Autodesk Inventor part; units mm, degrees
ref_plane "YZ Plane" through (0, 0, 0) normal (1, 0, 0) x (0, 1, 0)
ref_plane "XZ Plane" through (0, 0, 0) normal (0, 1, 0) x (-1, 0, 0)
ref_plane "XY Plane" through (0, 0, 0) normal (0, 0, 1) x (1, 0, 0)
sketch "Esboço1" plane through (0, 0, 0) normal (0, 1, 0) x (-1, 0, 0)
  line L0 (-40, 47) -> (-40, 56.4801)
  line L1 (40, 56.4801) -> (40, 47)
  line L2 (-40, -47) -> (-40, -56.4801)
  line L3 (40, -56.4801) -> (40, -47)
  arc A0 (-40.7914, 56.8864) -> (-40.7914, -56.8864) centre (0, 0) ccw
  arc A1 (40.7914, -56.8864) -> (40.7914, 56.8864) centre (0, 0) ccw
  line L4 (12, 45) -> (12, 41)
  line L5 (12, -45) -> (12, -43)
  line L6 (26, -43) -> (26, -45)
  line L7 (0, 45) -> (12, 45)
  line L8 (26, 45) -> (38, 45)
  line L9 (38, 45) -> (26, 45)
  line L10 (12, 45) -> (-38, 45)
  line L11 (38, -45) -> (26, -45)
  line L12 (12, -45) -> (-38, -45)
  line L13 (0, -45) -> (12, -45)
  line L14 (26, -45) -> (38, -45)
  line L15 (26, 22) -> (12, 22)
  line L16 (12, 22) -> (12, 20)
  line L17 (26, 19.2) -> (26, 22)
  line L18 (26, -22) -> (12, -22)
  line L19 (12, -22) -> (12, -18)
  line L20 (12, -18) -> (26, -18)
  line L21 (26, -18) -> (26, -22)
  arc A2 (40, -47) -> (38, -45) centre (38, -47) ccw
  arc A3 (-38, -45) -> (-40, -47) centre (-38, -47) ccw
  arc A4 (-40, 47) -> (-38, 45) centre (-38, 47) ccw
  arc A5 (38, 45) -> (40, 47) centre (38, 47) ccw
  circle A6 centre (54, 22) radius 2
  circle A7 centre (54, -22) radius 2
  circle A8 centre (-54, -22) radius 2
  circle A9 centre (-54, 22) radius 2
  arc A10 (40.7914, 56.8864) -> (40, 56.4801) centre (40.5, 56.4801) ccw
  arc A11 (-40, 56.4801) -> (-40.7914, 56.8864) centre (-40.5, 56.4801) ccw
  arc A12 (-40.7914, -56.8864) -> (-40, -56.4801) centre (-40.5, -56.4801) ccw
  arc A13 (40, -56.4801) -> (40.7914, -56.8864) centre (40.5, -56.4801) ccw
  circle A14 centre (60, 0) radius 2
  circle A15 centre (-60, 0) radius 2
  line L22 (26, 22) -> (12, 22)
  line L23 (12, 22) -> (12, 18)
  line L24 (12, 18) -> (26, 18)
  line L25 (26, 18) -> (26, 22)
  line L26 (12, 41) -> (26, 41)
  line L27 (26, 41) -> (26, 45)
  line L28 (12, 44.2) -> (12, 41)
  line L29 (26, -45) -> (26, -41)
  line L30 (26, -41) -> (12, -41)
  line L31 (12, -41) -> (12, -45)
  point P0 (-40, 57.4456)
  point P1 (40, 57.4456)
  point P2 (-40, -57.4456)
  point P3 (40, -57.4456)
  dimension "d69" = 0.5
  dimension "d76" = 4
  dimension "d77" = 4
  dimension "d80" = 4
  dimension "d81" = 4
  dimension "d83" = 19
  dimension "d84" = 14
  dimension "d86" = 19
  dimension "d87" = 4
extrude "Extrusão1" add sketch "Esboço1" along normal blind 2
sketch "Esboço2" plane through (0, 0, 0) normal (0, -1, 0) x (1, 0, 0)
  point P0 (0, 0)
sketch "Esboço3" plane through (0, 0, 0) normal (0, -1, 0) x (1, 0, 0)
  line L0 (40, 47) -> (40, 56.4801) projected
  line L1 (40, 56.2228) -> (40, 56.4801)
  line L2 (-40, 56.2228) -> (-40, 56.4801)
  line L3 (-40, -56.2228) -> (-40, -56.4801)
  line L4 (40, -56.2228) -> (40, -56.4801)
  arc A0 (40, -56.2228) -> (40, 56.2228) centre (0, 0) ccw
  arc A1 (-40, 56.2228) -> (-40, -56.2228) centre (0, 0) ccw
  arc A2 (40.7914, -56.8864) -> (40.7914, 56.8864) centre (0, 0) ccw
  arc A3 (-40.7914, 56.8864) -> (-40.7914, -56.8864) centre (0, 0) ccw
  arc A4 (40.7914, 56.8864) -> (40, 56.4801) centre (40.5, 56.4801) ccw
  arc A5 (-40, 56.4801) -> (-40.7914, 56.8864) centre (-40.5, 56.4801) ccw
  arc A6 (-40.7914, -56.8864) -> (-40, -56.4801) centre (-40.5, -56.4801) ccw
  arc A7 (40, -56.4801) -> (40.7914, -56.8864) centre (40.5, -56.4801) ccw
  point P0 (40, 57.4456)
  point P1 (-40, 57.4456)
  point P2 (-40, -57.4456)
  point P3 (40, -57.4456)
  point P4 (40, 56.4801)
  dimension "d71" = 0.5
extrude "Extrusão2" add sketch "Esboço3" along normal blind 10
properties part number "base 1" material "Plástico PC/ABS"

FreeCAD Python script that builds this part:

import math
import FreeCAD as App
import Part
import Sketcher
Q = App.Units.Quantity

doc = App.newDocument("Part")
params = doc.addObject("Spreadsheet::Sheet", "Params")
for row, (alias, value) in enumerate([
    ("sketch1_diameter", "4 mm"),
    ("sketch1_radius", "0.5 mm"),
    ("sketch1_width", "14 mm"),
    ("sketch1_height", "4 mm"),
    ("sketch1_radius2", "70 mm"),
    ("pad1_length", "2 mm"),
    ("sketch2_radius", "0.5 mm"),
    ("sketch2_radius2", "69 mm"),
    ("sketch2_radius3", "70 mm"),
    ("pad2_length", "10 mm"),
], start=1):
    params.set(f"A{row}", alias)
    params.set(f"B{row}", "=" + value)
    params.setAlias(f"B{row}", alias)

body = doc.addObject("PartDesign::Body", "Body")

# Sketch on XZ plane
sketch1 = body.newObject("Sketcher::SketchObject", "Sketch")
sketch1.AttachmentSupport = (doc.getObject("XZ_Plane"), [""])
sketch1.MapMode = "FlatFace"
sketch1.addGeometry(Part.ArcOfCircle(Part.Circle(App.Vector(38, 47, 0), App.Vector(0, 0, 1), 2), math.radians(-90), math.radians(0)), False)
sketch1.addGeometry(Part.LineSegment(App.Vector(40, 47, 0), App.Vector(40, 56.48, 0)), False)
sketch1.addGeometry(Part.ArcOfCircle(Part.Circle(App.Vector(40.5, 56.48, 0), App.Vector(0, 0, 1), 0.5), math.radians(54), math.radians(180)), False)
sketch1.addGeometry(Part.ArcOfCircle(Part.Circle(App.Vector(0, 0, 0), App.Vector(0, 0, 1), 70), math.radians(-54), math.radians(54)), False)
sketch1.addGeometry(Part.ArcOfCircle(Part.Circle(App.Vector(40.5, -56.48, 0), App.Vector(0, 0, 1), 0.5), math.radians(180), math.radians(306)), False)
sketch1.addGeometry(Part.LineSegment(App.Vector(40, -56.48, 0), App.Vector(40, -47, 0)), False)
sketch1.addGeometry(Part.ArcOfCircle(Part.Circle(App.Vector(38, -47, 0), App.Vector(0, 0, 1), 2), math.radians(0), math.radians(90)), False)
sketch1.addGeometry(Part.LineSegment(App.Vector(38, -45, 0), App.Vector(-12, -45, 0)), False)
sketch1.addGeometry(Part.LineSegment(App.Vector(-12, -45, 0), App.Vector(-12, -41, 0)), False)
sketch1.addGeometry(Part.LineSegment(App.Vector(-12, -41, 0), App.Vector(-26, -41, 0)), False)
sketch1.addGeometry(Part.LineSegment(App.Vector(-26, -41, 0), App.Vector(-26, -45, 0)), False)
sketch1.addGeometry(Part.LineSegment(App.Vector(-26, -45, 0), App.Vector(-38, -45, 0)), False)
sketch1.addGeometry(Part.ArcOfCircle(Part.Circle(App.Vector(-38, -47, 0), App.Vector(0, 0, 1), 2), math.radians(90), math.radians(180)), False)
sketch1.addGeometry(Part.LineSegment(App.Vector(-40, -47, 0), App.Vector(-40, -56.48, 0)), False)
sketch1.addGeometry(Part.ArcOfCircle(Part.Circle(App.Vector(-40.5, -56.48, 0), App.Vector(0, 0, 1), 0.5), math.radians(-126), math.radians(0)), False)
sketch1.addGeometry(Part.ArcOfCircle(Part.Circle(App.Vector(0, 0, 0), App.Vector(0, 0, 1), 70), math.radians(126), math.radians(234)), False)
sketch1.addGeometry(Part.ArcOfCircle(Part.Circle(App.Vector(-40.5, 56.48, 0), App.Vector(0, 0, 1), 0.5), math.radians(0), math.radians(126)), False)
sketch1.addGeometry(Part.LineSegment(App.Vector(-40, 56.48, 0), App.Vector(-40, 47, 0)), False)
sketch1.addGeometry(Part.ArcOfCircle(Part.Circle(App.Vector(-38, 47, 0), App.Vector(0, 0, 1), 2), math.radians(180), math.radians(270)), False)
sketch1.addGeometry(Part.LineSegment(App.Vector(-38, 45, 0), App.Vector(-26, 45, 0)), False)
sketch1.addGeometry(Part.LineSegment(App.Vector(-26, 45, 0), App.Vector(-26, 41, 0)), False)
sketch1.addGeometry(Part.LineSegment(App.Vector(-26, 41, 0), App.Vector(-12, 41, 0)), False)
sketch1.addGeometry(Part.LineSegment(App.Vector(-12, 41, 0), App.Vector(-12, 45, 0)), False)
sketch1.addGeometry(Part.LineSegment(App.Vector(-12, 45, 0), App.Vector(38, 45, 0)), False)
sketch1.addGeometry(Part.Circle(App.Vector(54, -22, 0), App.Vector(0, 0, 1), 2), False)
sketch1.addGeometry(Part.LineSegment(App.Vector(-26, -18, 0), App.Vector(-26, -22, 0)), False)
sketch1.addGeometry(Part.LineSegment(App.Vector(-26, -22, 0), App.Vector(-12, -22, 0)), False)
sketch1.addGeometry(Part.LineSegment(App.Vector(-12, -22, 0), App.Vector(-12, -18, 0)), False)
sketch1.addGeometry(Part.LineSegment(App.Vector(-12, -18, 0), App.Vector(-26, -18, 0)), False)
sketch1.addGeometry(Part.Circle(App.Vector(-54, -22, 0), App.Vector(0, 0, 1), 2), False)
sketch1.addGeometry(Part.Circle(App.Vector(60, 0, 0), App.Vector(0, 0, 1), 2), False)
sketch1.addGeometry(Part.Circle(App.Vector(54, 22, 0), App.Vector(0, 0, 1), 2), False)
sketch1.addGeometry(Part.LineSegment(App.Vector(-12, 22, 0), App.Vector(-26, 22, 0)), False)
sketch1.addGeometry(Part.LineSegment(App.Vector(-26, 22, 0), App.Vector(-26, 18, 0)), False)
sketch1.addGeometry(Part.LineSegment(App.Vector(-26, 18, 0), App.Vector(-12, 18, 0)), False)
sketch1.addGeometry(Part.LineSegment(App.Vector(-12, 18, 0), App.Vector(-12, 22, 0)), False)
sketch1.addGeometry(Part.Circle(App.Vector(-60, 0, 0), App.Vector(0, 0, 1), 2), False)
sketch1.addGeometry(Part.Circle(App.Vector(-54, 22, 0), App.Vector(0, 0, 1), 2), False)
sketch1.addConstraint(Sketcher.Constraint("Tangent", 0, 2, 1, 1))
sketch1.addConstraint(Sketcher.Constraint("Tangent", 1, 2, 2, 2))
sketch1.addConstraint(Sketcher.Constraint("Tangent", 2, 1, 3, 2))
sketch1.addConstraint(Sketcher.Constraint("Tangent", 3, 1, 4, 2))
sketch1.addConstraint(Sketcher.Constraint("Tangent", 4, 1, 5, 1))
sketch1.addConstraint(Sketcher.Constraint("Tangent", 5, 2, 6, 1))
sketch1.addConstraint(Sketcher.Constraint("Tangent", 6, 2, 7, 1))
sketch1.addConstraint(Sketcher.Constraint("Coincident", 7, 2, 8, 1))
sketch1.addConstraint(Sketcher.Constraint("Coincident", 8, 2, 9, 1))
sketch1.addConstraint(Sketcher.Constraint("Coincident", 9, 2, 10, 1))
sketch1.addConstraint(Sketcher.Constraint("Coincident", 10, 2, 11, 1))
sketch1.addConstraint(Sketcher.Constraint("Tangent", 11, 2, 12, 1))
sketch1.addConstraint(Sketcher.Constraint("Tangent", 12, 2, 13, 1))
sketch1.addConstraint(Sketcher.Constraint("Tangent", 13, 2, 14, 2))
sketch1.addConstraint(Sketcher.Constraint("Tangent", 14, 1, 15, 2))
sketch1.addConstraint(Sketcher.Constraint("Tangent", 15, 1, 16, 2))
sketch1.addConstraint(Sketcher.Constraint("Tangent", 16, 1, 17, 1))
sketch1.addConstraint(Sketcher.Constraint("Tangent", 17, 2, 18, 1))
sketch1.addConstraint(Sketcher.Constraint("Tangent", 18, 2, 19, 1))
sketch1.addConstraint(Sketcher.Constraint("Coincident", 19, 2, 20, 1))
sketch1.addConstraint(Sketcher.Constraint("Coincident", 20, 2, 21, 1))
sketch1.addConstraint(Sketcher.Constraint("Coincident", 21, 2, 22, 1))
sketch1.addConstraint(Sketcher.Constraint("Coincident", 22, 2, 23, 1))
sketch1.addConstraint(Sketcher.Constraint("Tangent", 23, 2, 0, 1))
sketch1.addConstraint(Sketcher.Constraint("Coincident", 25, 2, 26, 1))
sketch1.addConstraint(Sketcher.Constraint("Coincident", 26, 2, 27, 1))
sketch1.addConstraint(Sketcher.Constraint("Coincident", 27, 2, 28, 1))
sketch1.addConstraint(Sketcher.Constraint("Coincident", 28, 2, 25, 1))
sketch1.addConstraint(Sketcher.Constraint("Coincident", 32, 2, 33, 1))
sketch1.addConstraint(Sketcher.Constraint("Coincident", 33, 2, 34, 1))
sketch1.addConstraint(Sketcher.Constraint("Coincident", 34, 2, 35, 1))
sketch1.addConstraint(Sketcher.Constraint("Coincident", 35, 2, 32, 1))
sketch1.addConstraint(Sketcher.Constraint("Vertical", 1))
sketch1.addConstraint(Sketcher.Constraint("Vertical", 5))
sketch1.addConstraint(Sketcher.Constraint("Horizontal", 7))
sketch1.addConstraint(Sketcher.Constraint("Vertical", 8))
sketch1.addConstraint(Sketcher.Constraint("Horizontal", 9))
sketch1.addConstraint(Sketcher.Constraint("Vertical", 10))
sketch1.addConstraint(Sketcher.Constraint("Horizontal", 11))
sketch1.addConstraint(Sketcher.Constraint("Vertical", 13))
sketch1.addConstraint(Sketcher.Constraint("Vertical", 17))
sketch1.addConstraint(Sketcher.Constraint("Horizontal", 19))
sketch1.addConstraint(Sketcher.Constraint("Vertical", 20))
sketch1.addConstraint(Sketcher.Constraint("Horizontal", 21))
sketch1.addConstraint(Sketcher.Constraint("Vertical", 22))
sketch1.addConstraint(Sketcher.Constraint("Horizontal", 23))
sketch1.addConstraint(Sketcher.Constraint("Vertical", 25))
sketch1.addConstraint(Sketcher.Constraint("Horizontal", 26))
sketch1.addConstraint(Sketcher.Constraint("Vertical", 27))
sketch1.addConstraint(Sketcher.Constraint("Horizontal", 28))
sketch1.addConstraint(Sketcher.Constraint("Horizontal", 32))
sketch1.addConstraint(Sketcher.Constraint("Vertical", 33))
sketch1.addConstraint(Sketcher.Constraint("Horizontal", 34))
sketch1.addConstraint(Sketcher.Constraint("Vertical", 35))
sketch1.addConstraint(Sketcher.Constraint("Coincident", 3, 3, -1, 1))
sketch1.addConstraint(Sketcher.Constraint("Coincident", 15, 3, -1, 1))
sketch1.addConstraint(Sketcher.Constraint("Equal", 2, 4))
sketch1.addConstraint(Sketcher.Constraint("Equal", 0, 6))
sketch1.addConstraint(Sketcher.Constraint("Equal", 6, 12))
sketch1.addConstraint(Sketcher.Constraint("Equal", 4, 14))
sketch1.addConstraint(Sketcher.Constraint("Equal", 3, 15))
sketch1.addConstraint(Sketcher.Constraint("Equal", 14, 16))
sketch1.addConstraint(Sketcher.Constraint("Equal", 12, 18))
sketch1.addConstraint(Sketcher.Constraint("Equal", 18, 24))
sketch1.addConstraint(Sketcher.Constraint("Equal", 24, 29))
sketch1.addConstraint(Sketcher.Constraint("Equal", 29, 30))
sketch1.addConstraint(Sketcher.Constraint("Equal", 30, 31))
sketch1.addConstraint(Sketcher.Constraint("Equal", 31, 36))
sketch1.addConstraint(Sketcher.Constraint("Equal", 36, 37))
sketch1.addConstraint(Sketcher.Constraint("Symmetric", 0, 3, 12, 3, -1, 1))
sketch1.addConstraint(Sketcher.Constraint("Symmetric", 6, 3, 18, 3, -1, 1))
sketch1.addConstraint(Sketcher.Constraint("Symmetric", 29, 3, 31, 3, -1, 1))
sketch1.addConstraint(Sketcher.Constraint("Symmetric", 30, 3, 36, 3, -1, 1))
sketch1.addConstraint(Sketcher.Constraint("Symmetric", 24, 3, 37, 3, -1, 1))
sketch1.addConstraint(Sketcher.Constraint("Symmetric", 6, 3, 12, 3, -2))
sketch1.addConstraint(Sketcher.Constraint("Symmetric", 24, 3, 29, 3, -2))
sketch1.addConstraint(Sketcher.Constraint("Symmetric", 9, 2, 20, 2, -1))
sketch1.addConstraint(Sketcher.Constraint("Symmetric", 25, 2, 32, 2, -1))
sketch1.addConstraint(Sketcher.Constraint("Symmetric", 27, 2, 34, 2, -1))
sketch1.addConstraint(Sketcher.Constraint("PointOnObject", 30, 3, -1))
sketch1.addConstraint(Sketcher.Constraint("Horizontal", 29, 3, 25, 2))
sketch1.addConstraint(Sketcher.Constraint("Vertical", 8, 2, 21, 2))
sketch1.addConstraint(Sketcher.Constraint("Vertical", 20, 2, 25, 2))
sketch1.addConstraint(Sketcher.Constraint("Vertical", 22, 2, 26, 2))
sketch1.addConstraint(Sketcher.Constraint("Equal", 22, 25))
sketch1.addConstraint(Sketcher.Constraint("Diameter", 24, Q("4 mm")))
sketch1.addConstraint(Sketcher.Constraint("Radius", 2, Q("0.5 mm")))
sketch1.addConstraint(Sketcher.Constraint("DistanceX", 9, 2, 9, 1, Q("14 mm")))
sketch1.addConstraint(Sketcher.Constraint("DistanceY", 8, 1, 8, 2, Q("4 mm")))
sketch1.addConstraint(Sketcher.Constraint("Radius", 3, Q("70 mm")))
sketch1.addConstraint(Sketcher.Constraint("DistanceX", 0, 2, 31, 3, Q("14 mm")))
sketch1.addConstraint(Sketcher.Constraint("DistanceY", 9, 2, 29, 3, Q("19 mm")))
sketch1.addConstraint(Sketcher.Constraint("DistanceX", 12, 2, 10, 2, Q("14 mm")))
sketch1.addConstraint(Sketcher.Constraint("DistanceX", 7, 2, 7, 1, Q("50 mm")))
sketch1.addConstraint(Sketcher.Constraint("DistanceY", -1, 1, 0, 3, Q("47 mm")))
sketch1.addConstraint(Sketcher.Constraint("DistanceX", -1, 1, 30, 3, Q("60 mm")))
sketch1.setExpression("Constraints[85]", "Params.sketch1_diameter")
sketch1.setExpression("Constraints[86]", "Params.sketch1_radius")
sketch1.setExpression("Constraints[87]", "Params.sketch1_width")
sketch1.setExpression("Constraints[88]", "Params.sketch1_height")
sketch1.setExpression("Constraints[89]", "Params.sketch1_radius2")
pad1 = body.newObject("PartDesign::Pad", "Pad")
pad1.Profile = sketch1
pad1.setExpression("Length", "Params.pad1_length")
pad1.Reversed = True

# Sketch on XZ plane
sketch2 = body.newObject("Sketcher::SketchObject", "Sketch001")
sketch2.AttachmentSupport = (doc.getObject("XZ_Plane"), [""])
sketch2.MapMode = "FlatFace"
sketch2.addGeometry(Part.LineSegment(App.Vector(40, 56.4801, 0), App.Vector(40, 56.2228, 0)), False)
sketch2.addGeometry(Part.ArcOfCircle(Part.Circle(App.Vector(0, 0, 0), App.Vector(0, 0, 1), 69.000023), math.radians(-54.569856), math.radians(54.569856)), False)
sketch2.addGeometry(Part.LineSegment(App.Vector(40, -56.2228, 0), App.Vector(40, -56.4801, 0)), False)
sketch2.addGeometry(Part.ArcOfCircle(Part.Circle(App.Vector(40.5, -56.4801, 0), App.Vector(0, 0, 1), 0.5), math.radians(180), math.radians(305.648244)), False)
sketch2.addGeometry(Part.ArcOfCircle(Part.Circle(App.Vector(0, 0, 0), App.Vector(0, 0, 1), 70.000006), math.radians(-54.356915), math.radians(54.356915)), False)
sketch2.addGeometry(Part.ArcOfCircle(Part.Circle(App.Vector(40.5, 56.4801, 0), App.Vector(0, 0, 1), 0.499994), math.radians(54.351756), math.radians(180)), False)
sketch2.addGeometry(Part.ArcOfCircle(Part.Circle(App.Vector(0, 0, 0), App.Vector(0, 0, 1), 69.000023), math.radians(125.430144), math.radians(234.569856)), False)
sketch2.addGeometry(Part.LineSegment(App.Vector(-40, 56.2228, 0), App.Vector(-40, 56.4801, 0)), False)
sketch2.addGeometry(Part.ArcOfCircle(Part.Circle(App.Vector(-40.5, 56.4801, 0), App.Vector(0, 0, 1), 0.5), math.radians(0), math.radians(125.648244)), False)
sketch2.addGeometry(Part.ArcOfCircle(Part.Circle(App.Vector(0, 0, 0), App.Vector(0, 0, 1), 70.000006), math.radians(125.643085), math.radians(234.356915)), False)
sketch2.addGeometry(Part.ArcOfCircle(Part.Circle(App.Vector(-40.5, -56.4801, 0), App.Vector(0, 0, 1), 0.499994), math.radians(-125.648244), math.radians(0)), False)
sketch2.addGeometry(Part.LineSegment(App.Vector(-40, -56.4801, 0), App.Vector(-40, -56.2228, 0)), False)
sketch2.addConstraint(Sketcher.Constraint("Coincident", 0, 2, 1, 2))
sketch2.addConstraint(Sketcher.Constraint("Coincident", 1, 1, 2, 1))
sketch2.addConstraint(Sketcher.Constraint("Tangent", 2, 2, 3, 1))
sketch2.addConstraint(Sketcher.Constraint("Tangent", 3, 2, 4, 1))
sketch2.addConstraint(Sketcher.Constraint("Tangent", 4, 2, 5, 1))
sketch2.addConstraint(Sketcher.Constraint("Tangent", 5, 2, 0, 1))
sketch2.addConstraint(Sketcher.Constraint("Coincident", 6, 1, 7, 1))
sketch2.addConstraint(Sketcher.Constraint("Tangent", 7, 2, 8, 1))
sketch2.addConstraint(Sketcher.Constraint("Tangent", 8, 2, 9, 1))
sketch2.addConstraint(Sketcher.Constraint("Tangent", 9, 2, 10, 1))
sketch2.addConstraint(Sketcher.Constraint("Tangent", 10, 2, 11, 1))
sketch2.addConstraint(Sketcher.Constraint("Coincident", 11, 2, 6, 2))
sketch2.addConstraint(Sketcher.Constraint("Vertical", 0))
sketch2.addConstraint(Sketcher.Constraint("Vertical", 2))
sketch2.addConstraint(Sketcher.Constraint("Vertical", 7))
sketch2.addConstraint(Sketcher.Constraint("Vertical", 11))
sketch2.addConstraint(Sketcher.Constraint("Coincident", 1, 3, -1, 1))
sketch2.addConstraint(Sketcher.Constraint("Coincident", 4, 3, -1, 1))
sketch2.addConstraint(Sketcher.Constraint("Coincident", 6, 3, -1, 1))
sketch2.addConstraint(Sketcher.Constraint("Coincident", 9, 3, -1, 1))
sketch2.addConstraint(Sketcher.Constraint("Equal", 3, 5))
sketch2.addConstraint(Sketcher.Constraint("Equal", 1, 6))
sketch2.addConstraint(Sketcher.Constraint("Equal", 5, 8))
sketch2.addConstraint(Sketcher.Constraint("Equal", 4, 9))
sketch2.addConstraint(Sketcher.Constraint("Equal", 8, 10))
sketch2.addConstraint(Sketcher.Constraint("Horizontal", 5, 3, 8, 3))
sketch2.addConstraint(Sketcher.Constraint("Horizontal", 3, 3, 10, 3))
sketch2.addConstraint(Sketcher.Constraint("Vertical", 3, 3, 5, 3))
sketch2.addConstraint(Sketcher.Constraint("Radius", 3, Q("0.5 mm")))
sketch2.addConstraint(Sketcher.Constraint("Radius", 1, Q("69 mm")))
sketch2.addConstraint(Sketcher.Constraint("Radius", 4, Q("70 mm")))
sketch2.addConstraint(Sketcher.Constraint("DistanceX", -1, 1, 0, 2, Q("40 mm")))
sketch2.setExpression("Constraints[28]", "Params.sketch2_radius")
sketch2.setExpression("Constraints[29]", "Params.sketch2_radius2")
sketch2.setExpression("Constraints[30]", "Params.sketch2_radius3")
pad2 = body.newObject("PartDesign::Pad", "Pad001")
pad2.Profile = sketch2
pad2.setExpression("Length", "Params.pad2_length")

doc.recompute()
